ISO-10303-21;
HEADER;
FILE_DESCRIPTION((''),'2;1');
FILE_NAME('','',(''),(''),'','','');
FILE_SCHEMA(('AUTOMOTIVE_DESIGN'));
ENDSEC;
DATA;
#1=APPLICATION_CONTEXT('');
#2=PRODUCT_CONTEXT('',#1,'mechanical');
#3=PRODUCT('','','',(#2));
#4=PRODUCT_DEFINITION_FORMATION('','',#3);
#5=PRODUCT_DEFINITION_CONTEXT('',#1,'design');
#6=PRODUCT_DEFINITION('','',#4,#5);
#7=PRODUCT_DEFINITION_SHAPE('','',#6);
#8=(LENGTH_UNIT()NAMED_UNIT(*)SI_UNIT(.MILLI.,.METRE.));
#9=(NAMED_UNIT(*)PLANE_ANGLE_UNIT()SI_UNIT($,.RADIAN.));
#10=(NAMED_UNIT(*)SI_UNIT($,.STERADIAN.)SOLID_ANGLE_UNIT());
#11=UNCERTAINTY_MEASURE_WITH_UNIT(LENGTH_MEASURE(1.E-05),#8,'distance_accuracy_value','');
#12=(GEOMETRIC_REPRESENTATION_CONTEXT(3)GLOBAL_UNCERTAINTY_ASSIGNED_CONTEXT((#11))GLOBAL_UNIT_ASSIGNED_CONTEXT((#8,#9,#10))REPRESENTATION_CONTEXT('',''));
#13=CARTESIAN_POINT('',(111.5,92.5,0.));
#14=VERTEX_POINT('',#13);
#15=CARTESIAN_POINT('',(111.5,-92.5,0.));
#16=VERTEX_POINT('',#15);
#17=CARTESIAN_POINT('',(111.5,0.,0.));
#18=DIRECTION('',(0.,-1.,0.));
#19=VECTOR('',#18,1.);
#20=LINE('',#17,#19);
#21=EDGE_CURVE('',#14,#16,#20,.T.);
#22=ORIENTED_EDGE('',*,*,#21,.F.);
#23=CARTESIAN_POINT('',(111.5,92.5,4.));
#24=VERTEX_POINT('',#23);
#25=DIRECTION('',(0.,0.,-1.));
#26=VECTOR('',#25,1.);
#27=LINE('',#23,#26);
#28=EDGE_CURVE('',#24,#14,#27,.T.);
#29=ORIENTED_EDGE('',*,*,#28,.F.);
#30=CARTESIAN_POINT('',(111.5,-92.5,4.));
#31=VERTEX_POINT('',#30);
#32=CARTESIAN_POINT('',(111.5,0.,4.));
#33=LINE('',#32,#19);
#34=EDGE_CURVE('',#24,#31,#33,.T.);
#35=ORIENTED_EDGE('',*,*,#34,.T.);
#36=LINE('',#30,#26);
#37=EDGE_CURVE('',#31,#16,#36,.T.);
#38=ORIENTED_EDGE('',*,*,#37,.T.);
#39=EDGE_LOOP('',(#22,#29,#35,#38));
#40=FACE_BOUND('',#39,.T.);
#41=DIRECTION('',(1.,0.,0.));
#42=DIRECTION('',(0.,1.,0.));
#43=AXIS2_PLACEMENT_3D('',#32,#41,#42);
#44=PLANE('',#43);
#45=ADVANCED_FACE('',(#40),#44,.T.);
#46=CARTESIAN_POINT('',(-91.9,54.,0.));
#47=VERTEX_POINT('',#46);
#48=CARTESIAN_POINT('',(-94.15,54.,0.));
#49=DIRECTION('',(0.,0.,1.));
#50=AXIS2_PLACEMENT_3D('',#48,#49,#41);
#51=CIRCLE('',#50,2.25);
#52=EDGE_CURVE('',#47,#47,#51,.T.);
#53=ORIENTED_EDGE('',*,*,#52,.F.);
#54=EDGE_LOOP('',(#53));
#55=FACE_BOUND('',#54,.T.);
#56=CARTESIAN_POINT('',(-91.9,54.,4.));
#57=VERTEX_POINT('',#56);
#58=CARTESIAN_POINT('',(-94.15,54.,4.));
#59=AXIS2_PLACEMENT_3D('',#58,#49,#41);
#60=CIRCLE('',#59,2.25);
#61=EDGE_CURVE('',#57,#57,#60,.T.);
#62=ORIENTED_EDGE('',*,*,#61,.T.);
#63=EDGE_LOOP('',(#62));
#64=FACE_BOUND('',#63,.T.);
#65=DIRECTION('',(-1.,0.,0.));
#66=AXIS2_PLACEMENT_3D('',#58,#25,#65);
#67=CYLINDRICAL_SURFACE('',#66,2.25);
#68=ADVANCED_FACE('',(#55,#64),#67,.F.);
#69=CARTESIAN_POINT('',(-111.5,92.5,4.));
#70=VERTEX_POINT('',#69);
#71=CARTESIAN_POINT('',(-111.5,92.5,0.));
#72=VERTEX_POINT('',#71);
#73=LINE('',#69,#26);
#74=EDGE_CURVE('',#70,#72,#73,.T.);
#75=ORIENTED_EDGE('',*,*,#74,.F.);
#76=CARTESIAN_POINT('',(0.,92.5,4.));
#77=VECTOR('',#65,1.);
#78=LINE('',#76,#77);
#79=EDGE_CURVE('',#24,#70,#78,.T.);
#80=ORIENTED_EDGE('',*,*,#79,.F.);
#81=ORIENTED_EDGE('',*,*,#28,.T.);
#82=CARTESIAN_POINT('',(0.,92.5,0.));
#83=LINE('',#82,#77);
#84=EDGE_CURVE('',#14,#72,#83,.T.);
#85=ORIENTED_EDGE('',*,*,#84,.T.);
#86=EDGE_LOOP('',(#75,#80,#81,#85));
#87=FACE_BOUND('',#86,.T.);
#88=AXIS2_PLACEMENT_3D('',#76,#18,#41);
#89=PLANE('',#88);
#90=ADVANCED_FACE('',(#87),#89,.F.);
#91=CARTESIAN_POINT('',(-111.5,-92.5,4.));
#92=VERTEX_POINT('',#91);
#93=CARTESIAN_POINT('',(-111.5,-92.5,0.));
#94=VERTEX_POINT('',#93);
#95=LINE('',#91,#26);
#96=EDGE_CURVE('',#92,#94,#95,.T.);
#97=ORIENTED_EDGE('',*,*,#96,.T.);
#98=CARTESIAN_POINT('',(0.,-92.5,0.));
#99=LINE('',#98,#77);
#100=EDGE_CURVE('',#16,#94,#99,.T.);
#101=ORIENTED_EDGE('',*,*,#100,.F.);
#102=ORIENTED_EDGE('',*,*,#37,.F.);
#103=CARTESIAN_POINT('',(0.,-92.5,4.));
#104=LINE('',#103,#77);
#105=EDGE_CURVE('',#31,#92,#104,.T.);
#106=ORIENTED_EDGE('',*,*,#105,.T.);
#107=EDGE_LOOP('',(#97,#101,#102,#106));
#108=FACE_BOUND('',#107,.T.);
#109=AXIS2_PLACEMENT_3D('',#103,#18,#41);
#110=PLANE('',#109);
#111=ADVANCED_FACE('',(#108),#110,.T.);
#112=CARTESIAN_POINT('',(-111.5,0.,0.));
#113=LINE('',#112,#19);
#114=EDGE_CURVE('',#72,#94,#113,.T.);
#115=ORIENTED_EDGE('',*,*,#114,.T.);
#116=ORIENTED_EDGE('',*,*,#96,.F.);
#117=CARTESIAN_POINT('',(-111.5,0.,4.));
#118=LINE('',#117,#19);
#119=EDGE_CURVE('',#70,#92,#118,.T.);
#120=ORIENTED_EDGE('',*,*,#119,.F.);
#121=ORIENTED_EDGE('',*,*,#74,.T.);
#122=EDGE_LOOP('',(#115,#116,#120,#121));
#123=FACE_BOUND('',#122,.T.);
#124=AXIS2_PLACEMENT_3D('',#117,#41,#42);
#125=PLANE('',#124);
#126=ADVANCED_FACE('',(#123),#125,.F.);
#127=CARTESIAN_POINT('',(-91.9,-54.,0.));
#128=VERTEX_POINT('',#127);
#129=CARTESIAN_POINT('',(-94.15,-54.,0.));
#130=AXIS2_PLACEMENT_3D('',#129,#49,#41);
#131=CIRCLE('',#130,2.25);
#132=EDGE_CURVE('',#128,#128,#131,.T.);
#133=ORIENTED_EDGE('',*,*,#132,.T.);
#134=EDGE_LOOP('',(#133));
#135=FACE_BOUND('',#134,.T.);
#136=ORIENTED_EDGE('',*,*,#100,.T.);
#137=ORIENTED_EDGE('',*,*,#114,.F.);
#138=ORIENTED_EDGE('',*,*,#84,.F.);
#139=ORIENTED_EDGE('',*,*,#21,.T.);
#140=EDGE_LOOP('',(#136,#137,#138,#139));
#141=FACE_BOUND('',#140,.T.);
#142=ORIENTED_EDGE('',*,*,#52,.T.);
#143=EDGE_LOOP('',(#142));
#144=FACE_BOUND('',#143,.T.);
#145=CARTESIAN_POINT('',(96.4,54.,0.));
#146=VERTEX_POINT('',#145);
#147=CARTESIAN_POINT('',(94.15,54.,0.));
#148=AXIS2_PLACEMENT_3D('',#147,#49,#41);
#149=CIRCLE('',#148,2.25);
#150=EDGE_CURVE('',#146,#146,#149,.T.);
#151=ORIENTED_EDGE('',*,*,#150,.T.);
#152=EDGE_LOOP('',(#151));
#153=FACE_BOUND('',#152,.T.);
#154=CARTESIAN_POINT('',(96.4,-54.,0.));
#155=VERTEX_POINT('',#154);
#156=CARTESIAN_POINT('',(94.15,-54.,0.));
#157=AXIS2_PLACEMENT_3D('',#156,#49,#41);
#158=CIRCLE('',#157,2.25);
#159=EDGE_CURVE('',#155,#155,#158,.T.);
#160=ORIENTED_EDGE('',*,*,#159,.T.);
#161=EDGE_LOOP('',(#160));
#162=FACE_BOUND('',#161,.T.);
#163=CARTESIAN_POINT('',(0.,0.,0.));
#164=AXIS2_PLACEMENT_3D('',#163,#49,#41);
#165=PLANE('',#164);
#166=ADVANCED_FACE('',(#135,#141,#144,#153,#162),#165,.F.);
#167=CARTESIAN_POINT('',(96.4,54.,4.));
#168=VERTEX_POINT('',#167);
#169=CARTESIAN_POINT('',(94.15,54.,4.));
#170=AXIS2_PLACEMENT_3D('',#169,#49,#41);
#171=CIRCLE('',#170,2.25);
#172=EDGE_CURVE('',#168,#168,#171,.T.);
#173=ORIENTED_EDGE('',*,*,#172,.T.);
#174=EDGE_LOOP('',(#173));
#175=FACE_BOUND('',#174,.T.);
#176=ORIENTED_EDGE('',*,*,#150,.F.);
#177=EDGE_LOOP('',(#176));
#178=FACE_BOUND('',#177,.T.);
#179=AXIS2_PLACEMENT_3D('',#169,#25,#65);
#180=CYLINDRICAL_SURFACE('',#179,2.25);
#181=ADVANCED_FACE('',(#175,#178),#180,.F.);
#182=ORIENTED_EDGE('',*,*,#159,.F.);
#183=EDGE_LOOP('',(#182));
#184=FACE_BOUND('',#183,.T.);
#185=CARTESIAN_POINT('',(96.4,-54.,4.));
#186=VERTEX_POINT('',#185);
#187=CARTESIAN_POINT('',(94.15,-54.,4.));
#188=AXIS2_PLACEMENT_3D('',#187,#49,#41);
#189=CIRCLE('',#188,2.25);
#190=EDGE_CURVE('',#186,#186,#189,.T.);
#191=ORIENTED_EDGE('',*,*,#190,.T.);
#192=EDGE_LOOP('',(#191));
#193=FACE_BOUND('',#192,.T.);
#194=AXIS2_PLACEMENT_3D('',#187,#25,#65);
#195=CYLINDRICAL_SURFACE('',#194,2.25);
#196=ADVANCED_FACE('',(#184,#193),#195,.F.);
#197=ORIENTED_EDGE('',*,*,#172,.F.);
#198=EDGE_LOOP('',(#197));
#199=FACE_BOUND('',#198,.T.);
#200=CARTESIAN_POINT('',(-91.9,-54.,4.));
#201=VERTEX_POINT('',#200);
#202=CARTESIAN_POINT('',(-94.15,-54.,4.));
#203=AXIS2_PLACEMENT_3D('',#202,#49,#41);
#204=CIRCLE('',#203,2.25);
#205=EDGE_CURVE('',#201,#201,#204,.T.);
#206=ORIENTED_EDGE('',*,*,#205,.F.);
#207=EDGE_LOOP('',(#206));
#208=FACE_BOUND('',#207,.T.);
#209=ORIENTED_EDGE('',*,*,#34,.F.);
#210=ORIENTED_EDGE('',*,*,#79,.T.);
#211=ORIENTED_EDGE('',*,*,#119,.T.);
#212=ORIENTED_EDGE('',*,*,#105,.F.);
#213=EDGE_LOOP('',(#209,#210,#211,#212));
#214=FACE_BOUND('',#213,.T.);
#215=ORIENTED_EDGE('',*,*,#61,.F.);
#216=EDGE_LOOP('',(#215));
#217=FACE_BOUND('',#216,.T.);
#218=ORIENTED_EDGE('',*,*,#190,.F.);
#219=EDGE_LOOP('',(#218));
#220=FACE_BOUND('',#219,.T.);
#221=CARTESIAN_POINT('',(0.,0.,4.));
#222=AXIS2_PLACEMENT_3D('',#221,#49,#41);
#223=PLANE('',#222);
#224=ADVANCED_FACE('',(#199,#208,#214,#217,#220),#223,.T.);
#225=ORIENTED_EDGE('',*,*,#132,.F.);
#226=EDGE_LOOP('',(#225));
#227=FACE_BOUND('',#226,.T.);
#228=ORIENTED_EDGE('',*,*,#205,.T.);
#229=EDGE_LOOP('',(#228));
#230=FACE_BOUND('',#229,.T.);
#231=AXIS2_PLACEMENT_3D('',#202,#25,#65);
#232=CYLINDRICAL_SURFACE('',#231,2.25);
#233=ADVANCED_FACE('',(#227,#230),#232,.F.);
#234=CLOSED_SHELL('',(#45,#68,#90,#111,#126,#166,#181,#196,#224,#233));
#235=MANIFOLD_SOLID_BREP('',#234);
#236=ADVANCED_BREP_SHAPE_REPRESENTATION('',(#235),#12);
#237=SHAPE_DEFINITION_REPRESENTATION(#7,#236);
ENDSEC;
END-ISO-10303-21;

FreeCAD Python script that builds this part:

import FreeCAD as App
import Part
import Sketcher
from FreeCAD import Vector
Q = App.Units.Quantity

doc = App.newDocument("Part")
params = doc.addObject("Spreadsheet::Sheet", "Params")
for row, (alias, value) in enumerate([
    ("sketch1_diameter", "4.5 mm"),
    ("sketch1_width", "223 mm"),
    ("sketch1_height", "185 mm"),
    ("pad1_length", "4 mm"),
], start=1):
    params.set(f"A{row}", alias)
    params.set(f"B{row}", "=" + value)
    params.setAlias(f"B{row}", alias)

body = doc.addObject("PartDesign::Body", "Body")

# Sketch on XY plane
sketch1 = body.newObject("Sketcher::SketchObject", "Sketch")
sketch1.AttachmentSupport = (doc.getObject("XY_Plane"), [""])
sketch1.MapMode = "FlatFace"
sketch1.addGeometry(Part.LineSegment(Vector(-111.5, 92.5, 0), Vector(-111.5, -92.5, 0)), False)
sketch1.addGeometry(Part.LineSegment(Vector(-111.5, -92.5, 0), Vector(111.5, -92.5, 0)), False)
sketch1.addGeometry(Part.LineSegment(Vector(111.5, -92.5, 0), Vector(111.5, 92.5, 0)), False)
sketch1.addGeometry(Part.LineSegment(Vector(111.5, 92.5, 0), Vector(-111.5, 92.5, 0)), False)
sketch1.addGeometry(Part.Circle(Vector(-94.15, -54, 0), Vector(0, 0, 1), 2.25), False)
sketch1.addGeometry(Part.Circle(Vector(94.15, -54, 0), Vector(0, 0, 1), 2.25), False)
sketch1.addGeometry(Part.Circle(Vector(-94.15, 54, 0), Vector(0, 0, 1), 2.25), False)
sketch1.addGeometry(Part.Circle(Vector(94.15, 54, 0), Vector(0, 0, 1), 2.25), False)
sketch1.addConstraint(Sketcher.Constraint("Coincident", 0, 2, 1, 1))
sketch1.addConstraint(Sketcher.Constraint("Coincident", 1, 2, 2, 1))
sketch1.addConstraint(Sketcher.Constraint("Coincident", 2, 2, 3, 1))
sketch1.addConstraint(Sketcher.Constraint("Coincident", 3, 2, 0, 1))
sketch1.addConstraint(Sketcher.Constraint("Vertical", 0))
sketch1.addConstraint(Sketcher.Constraint("Horizontal", 1))
sketch1.addConstraint(Sketcher.Constraint("Vertical", 2))
sketch1.addConstraint(Sketcher.Constraint("Horizontal", 3))
sketch1.addConstraint(Sketcher.Constraint("Equal", 4, 5))
sketch1.addConstraint(Sketcher.Constraint("Equal", 5, 6))
sketch1.addConstraint(Sketcher.Constraint("Equal", 6, 7))
sketch1.addConstraint(Sketcher.Constraint("Symmetric", 5, 3, 6, 3, -1, 1))
sketch1.addConstraint(Sketcher.Constraint("Symmetric", 4, 3, 7, 3, -1, 1))
sketch1.addConstraint(Sketcher.Constraint("Symmetric", 0, 2, 2, 2, -1, 1))
sketch1.addConstraint(Sketcher.Constraint("Symmetric", 4, 3, 5, 3, -2))
sketch1.addConstraint(Sketcher.Constraint("Diameter", 4, Q("4.5 mm")))
sketch1.addConstraint(Sketcher.Constraint("DistanceX", 1, 1, 1, 2, Q("223 mm")))
sketch1.addConstraint(Sketcher.Constraint("DistanceY", 0, 2, 0, 1, Q("185 mm")))
sketch1.addConstraint(Sketcher.Constraint("DistanceY", 4, 3, -1, 1, Q("54 mm")))
sketch1.addConstraint(Sketcher.Constraint("DistanceX", 4, 3, 5, 3, Q("188.3 mm")))
sketch1.setExpression("Constraints[15]", "Params.sketch1_diameter")
sketch1.setExpression("Constraints[16]", "Params.sketch1_width")
sketch1.setExpression("Constraints[17]", "Params.sketch1_height")
pad1 = body.newObject("PartDesign::Pad", "Pad")
pad1.Profile = sketch1
pad1.setExpression("Length", "Params.pad1_length")

doc.recompute()
